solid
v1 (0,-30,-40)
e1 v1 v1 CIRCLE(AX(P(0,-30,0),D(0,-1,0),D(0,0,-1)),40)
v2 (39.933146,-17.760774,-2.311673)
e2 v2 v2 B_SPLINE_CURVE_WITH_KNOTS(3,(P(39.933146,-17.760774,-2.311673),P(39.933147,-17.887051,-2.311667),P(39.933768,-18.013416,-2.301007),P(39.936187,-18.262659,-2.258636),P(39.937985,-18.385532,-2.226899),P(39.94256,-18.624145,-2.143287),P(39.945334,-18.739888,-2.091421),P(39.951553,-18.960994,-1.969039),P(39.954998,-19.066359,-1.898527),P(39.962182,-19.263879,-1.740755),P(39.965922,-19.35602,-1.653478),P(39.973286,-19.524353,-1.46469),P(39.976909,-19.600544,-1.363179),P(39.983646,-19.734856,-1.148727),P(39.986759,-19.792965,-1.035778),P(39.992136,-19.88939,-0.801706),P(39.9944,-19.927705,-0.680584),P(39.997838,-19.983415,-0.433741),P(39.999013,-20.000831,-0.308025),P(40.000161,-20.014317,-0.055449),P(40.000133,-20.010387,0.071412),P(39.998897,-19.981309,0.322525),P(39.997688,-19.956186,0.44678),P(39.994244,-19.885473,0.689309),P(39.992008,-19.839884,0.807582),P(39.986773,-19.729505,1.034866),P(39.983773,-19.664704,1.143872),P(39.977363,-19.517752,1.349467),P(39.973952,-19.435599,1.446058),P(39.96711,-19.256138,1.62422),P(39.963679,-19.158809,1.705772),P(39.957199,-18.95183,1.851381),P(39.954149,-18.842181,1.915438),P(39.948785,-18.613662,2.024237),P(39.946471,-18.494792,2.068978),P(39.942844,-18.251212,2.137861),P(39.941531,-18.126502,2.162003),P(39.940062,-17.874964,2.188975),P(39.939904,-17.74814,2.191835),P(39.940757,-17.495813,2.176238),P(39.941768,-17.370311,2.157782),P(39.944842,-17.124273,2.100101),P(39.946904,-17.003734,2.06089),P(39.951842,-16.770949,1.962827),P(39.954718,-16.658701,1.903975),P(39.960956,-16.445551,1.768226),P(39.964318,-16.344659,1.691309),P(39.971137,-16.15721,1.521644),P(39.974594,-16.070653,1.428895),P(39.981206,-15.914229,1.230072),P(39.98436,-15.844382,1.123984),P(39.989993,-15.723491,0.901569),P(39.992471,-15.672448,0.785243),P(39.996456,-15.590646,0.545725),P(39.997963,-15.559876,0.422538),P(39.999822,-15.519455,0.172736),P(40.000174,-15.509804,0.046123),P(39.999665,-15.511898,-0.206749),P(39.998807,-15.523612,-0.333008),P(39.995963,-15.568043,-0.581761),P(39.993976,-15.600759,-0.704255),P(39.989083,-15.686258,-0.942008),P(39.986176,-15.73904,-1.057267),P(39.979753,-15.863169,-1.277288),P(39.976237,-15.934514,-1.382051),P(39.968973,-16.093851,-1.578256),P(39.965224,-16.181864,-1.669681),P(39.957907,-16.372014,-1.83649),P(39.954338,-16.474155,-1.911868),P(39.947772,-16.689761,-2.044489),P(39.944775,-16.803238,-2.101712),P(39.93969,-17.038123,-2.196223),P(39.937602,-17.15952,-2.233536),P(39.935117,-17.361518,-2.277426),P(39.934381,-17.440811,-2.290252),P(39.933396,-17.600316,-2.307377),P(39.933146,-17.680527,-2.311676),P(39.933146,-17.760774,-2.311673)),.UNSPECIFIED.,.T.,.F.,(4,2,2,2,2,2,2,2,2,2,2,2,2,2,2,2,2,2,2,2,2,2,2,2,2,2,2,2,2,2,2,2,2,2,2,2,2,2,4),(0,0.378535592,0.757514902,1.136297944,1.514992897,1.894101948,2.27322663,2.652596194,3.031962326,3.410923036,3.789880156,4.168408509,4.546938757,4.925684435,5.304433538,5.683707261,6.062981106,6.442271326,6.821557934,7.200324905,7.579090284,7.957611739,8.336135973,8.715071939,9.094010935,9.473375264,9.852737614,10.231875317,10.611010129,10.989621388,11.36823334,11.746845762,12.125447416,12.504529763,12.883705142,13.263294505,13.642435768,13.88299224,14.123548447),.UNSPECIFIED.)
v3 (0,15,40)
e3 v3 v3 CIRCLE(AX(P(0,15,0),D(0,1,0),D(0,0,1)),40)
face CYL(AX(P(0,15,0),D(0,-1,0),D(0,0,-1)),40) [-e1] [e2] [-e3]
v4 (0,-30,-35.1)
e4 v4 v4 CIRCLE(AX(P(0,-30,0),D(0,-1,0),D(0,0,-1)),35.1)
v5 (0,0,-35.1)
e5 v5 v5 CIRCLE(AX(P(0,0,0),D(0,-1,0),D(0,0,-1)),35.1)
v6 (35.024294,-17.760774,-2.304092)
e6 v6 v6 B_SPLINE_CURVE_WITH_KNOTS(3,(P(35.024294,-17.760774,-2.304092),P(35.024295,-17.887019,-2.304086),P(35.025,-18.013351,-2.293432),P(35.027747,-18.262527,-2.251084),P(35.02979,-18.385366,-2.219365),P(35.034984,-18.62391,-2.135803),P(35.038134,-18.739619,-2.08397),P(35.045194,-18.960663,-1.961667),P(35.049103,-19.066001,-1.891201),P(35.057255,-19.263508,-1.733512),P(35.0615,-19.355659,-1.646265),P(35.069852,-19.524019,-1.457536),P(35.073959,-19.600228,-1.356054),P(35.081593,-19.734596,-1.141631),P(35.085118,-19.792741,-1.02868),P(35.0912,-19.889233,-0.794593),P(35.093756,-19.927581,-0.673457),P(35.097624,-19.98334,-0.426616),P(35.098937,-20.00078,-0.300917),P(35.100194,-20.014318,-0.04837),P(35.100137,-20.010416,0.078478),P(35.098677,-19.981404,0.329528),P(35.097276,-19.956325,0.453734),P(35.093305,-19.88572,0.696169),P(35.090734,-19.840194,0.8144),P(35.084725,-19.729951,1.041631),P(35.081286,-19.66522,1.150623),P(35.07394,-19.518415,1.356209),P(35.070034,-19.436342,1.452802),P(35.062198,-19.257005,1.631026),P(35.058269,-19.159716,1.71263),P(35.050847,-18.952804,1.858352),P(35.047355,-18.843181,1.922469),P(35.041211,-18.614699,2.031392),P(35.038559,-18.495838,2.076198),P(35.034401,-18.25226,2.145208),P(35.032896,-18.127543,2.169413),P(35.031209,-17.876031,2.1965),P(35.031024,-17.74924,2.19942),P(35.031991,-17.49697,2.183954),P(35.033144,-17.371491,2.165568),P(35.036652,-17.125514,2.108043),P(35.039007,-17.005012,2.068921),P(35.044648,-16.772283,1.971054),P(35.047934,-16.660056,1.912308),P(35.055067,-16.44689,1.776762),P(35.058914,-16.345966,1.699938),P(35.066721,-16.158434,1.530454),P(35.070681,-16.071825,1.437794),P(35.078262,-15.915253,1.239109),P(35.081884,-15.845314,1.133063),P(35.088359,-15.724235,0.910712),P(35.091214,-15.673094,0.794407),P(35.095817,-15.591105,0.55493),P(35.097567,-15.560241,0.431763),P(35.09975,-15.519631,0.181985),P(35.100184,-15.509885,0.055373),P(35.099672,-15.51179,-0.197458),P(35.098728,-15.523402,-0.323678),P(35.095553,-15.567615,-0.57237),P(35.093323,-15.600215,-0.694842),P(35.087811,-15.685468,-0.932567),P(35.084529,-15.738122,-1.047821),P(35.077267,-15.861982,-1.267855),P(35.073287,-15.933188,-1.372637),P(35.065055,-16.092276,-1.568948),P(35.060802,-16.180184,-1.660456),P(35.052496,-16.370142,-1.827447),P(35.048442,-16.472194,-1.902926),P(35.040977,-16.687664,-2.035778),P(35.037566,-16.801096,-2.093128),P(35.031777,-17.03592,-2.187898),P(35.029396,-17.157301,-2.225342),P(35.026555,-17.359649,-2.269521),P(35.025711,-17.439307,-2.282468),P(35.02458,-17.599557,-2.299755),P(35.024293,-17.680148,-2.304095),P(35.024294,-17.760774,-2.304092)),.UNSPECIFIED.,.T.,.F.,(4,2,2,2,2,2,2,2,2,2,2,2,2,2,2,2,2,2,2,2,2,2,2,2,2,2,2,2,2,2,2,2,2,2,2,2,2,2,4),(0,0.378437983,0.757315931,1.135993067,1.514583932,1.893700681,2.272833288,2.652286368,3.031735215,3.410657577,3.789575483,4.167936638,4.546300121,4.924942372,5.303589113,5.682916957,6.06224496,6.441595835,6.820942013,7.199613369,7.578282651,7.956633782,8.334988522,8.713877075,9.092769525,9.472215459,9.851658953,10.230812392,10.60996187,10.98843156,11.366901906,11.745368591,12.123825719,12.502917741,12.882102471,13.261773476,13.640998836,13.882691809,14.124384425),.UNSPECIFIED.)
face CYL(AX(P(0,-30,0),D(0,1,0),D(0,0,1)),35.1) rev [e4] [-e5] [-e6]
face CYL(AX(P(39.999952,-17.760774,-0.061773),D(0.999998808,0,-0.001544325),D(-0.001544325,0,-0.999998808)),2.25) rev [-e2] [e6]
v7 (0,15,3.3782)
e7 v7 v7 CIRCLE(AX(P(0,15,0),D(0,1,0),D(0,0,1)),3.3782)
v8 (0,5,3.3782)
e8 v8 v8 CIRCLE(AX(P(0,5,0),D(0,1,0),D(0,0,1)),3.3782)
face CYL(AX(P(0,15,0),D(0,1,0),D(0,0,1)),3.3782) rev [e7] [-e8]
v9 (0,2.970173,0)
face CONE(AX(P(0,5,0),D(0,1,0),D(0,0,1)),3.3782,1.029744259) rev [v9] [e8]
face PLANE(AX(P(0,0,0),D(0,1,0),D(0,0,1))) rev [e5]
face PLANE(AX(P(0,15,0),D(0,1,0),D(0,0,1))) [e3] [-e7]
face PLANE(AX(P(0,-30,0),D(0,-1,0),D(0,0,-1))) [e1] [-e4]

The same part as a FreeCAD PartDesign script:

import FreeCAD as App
import Part
import Sketcher
from FreeCAD import Vector
Q = App.Units.Quantity

doc = App.newDocument("Part")
body = doc.addObject("PartDesign::Body", "Body")

sketch1 = body.newObject("Sketcher::SketchObject", "Sketch")
sketch1.AttachmentSupport = (doc.getObject("XZ_Plane"), [""])
sketch1.MapMode = "FlatFace"
sketch1.addGeometry(Part.Circle(Vector(0, 0, 0), Vector(0, 0, 1), 40), False)
sketch1.addConstraint([
    Sketcher.Constraint("Coincident", 0, 3, -1, 1),
    Sketcher.Constraint("Diameter", 0, Q("80 mm")),
])
pad1 = body.newObject("PartDesign::Pad", "Pad")
pad1.Profile = sketch1
pad1.Length = 15
pad1.Reversed = True

sketch2 = body.newObject("Sketcher::SketchObject", "Sketch001")
sketch2.AttachmentSupport = (doc.getObject("XZ_Plane"), [""])
sketch2.MapMode = "FlatFace"
sketch2.addGeometry([
    Part.Circle(Vector(0, 0, 0), Vector(0, 0, 1), 40),
    Part.Circle(Vector(0, 0, 0), Vector(0, 0, 1), 35),
], False)
sketch2.addConstraint([
    Sketcher.Constraint("Coincident", 0, 3, -1, 1),
    Sketcher.Constraint("Coincident", 1, 3, -1, 1),
    Sketcher.Constraint("Diameter", 0, Q("80 mm")),
    Sketcher.Constraint("Diameter", 1, Q("70.2 mm")),
])
pad2 = body.newObject("PartDesign::Pad", "Pad001")
pad2.Profile = sketch2
pad2.Length = 30

sketch3 = body.newObject("Sketcher::SketchObject", "Sketch002")
sketch3.Placement = App.Placement(Vector(39.999952, -17.760774, -0.061773), App.Rotation(Vector(0.001544325, 0, 0.999998808), Vector(0, -1.000000001, 0), Vector(0.999998808, 0, -0.001544325), "ZXY"))
sketch3.addGeometry(Part.Circle(Vector(0, 0, 0), Vector(0, 0, 1), 2.2), False)
sketch3.addConstraint([
    Sketcher.Constraint("Coincident", 0, 3, -1, 1),
    Sketcher.Constraint("Diameter", 0, Q("4.5 mm")),
])
pocket1 = body.newObject("PartDesign::Pocket", "Pocket")
pocket1.Profile = sketch3
pocket1.Length = 4.97219

sketch4 = body.newObject("Sketcher::SketchObject", "Sketch003")
sketch4.AttachmentSupport = (doc.getObject("YZ_Plane"), [""])
sketch4.MapMode = "FlatFace"
sketch4.addGeometry([
    Part.LineSegment(Vector(3, 0, 0), Vector(15, 0, 0)),
    Part.LineSegment(Vector(15, 0, 0), Vector(15, 3.4, 0)),
    Part.LineSegment(Vector(15, 3.4, 0), Vector(5, 3.4, 0)),
    Part.LineSegment(Vector(5, 3.4, 0), Vector(3, 0, 0)),
], False)
sketch4.addConstraint([
    Sketcher.Constraint("Coincident", 0, 2, 1, 1),
    Sketcher.Constraint("Coincident", 1, 2, 2, 1),
    Sketcher.Constraint("Coincident", 2, 2, 3, 1),
    Sketcher.Constraint("Coincident", 3, 2, 0, 1),
    Sketcher.Constraint("Horizontal", 0),
    Sketcher.Constraint("Vertical", 1),
    Sketcher.Constraint("Horizontal", 2),
    Sketcher.Constraint("PointOnObject", 0, 2, -1),
    Sketcher.Constraint("DistanceX", 2, 2, 2, 1, Q("10 mm")),
    Sketcher.Constraint("Angle", 3, Q("-121 deg")),
    Sketcher.Constraint("DistanceX", -1, 1, 0, 2, Q("15 mm")),
    Sketcher.Constraint("DistanceY", 1, 1, 1, 2, Q("3.3782 mm")),
])
groove = body.newObject("PartDesign::Groove", "Groove")
groove.Profile = sketch4
groove.ReferenceAxis = (sketch4, ["H_Axis"])
groove.Angle = 360

doc.recompute()
